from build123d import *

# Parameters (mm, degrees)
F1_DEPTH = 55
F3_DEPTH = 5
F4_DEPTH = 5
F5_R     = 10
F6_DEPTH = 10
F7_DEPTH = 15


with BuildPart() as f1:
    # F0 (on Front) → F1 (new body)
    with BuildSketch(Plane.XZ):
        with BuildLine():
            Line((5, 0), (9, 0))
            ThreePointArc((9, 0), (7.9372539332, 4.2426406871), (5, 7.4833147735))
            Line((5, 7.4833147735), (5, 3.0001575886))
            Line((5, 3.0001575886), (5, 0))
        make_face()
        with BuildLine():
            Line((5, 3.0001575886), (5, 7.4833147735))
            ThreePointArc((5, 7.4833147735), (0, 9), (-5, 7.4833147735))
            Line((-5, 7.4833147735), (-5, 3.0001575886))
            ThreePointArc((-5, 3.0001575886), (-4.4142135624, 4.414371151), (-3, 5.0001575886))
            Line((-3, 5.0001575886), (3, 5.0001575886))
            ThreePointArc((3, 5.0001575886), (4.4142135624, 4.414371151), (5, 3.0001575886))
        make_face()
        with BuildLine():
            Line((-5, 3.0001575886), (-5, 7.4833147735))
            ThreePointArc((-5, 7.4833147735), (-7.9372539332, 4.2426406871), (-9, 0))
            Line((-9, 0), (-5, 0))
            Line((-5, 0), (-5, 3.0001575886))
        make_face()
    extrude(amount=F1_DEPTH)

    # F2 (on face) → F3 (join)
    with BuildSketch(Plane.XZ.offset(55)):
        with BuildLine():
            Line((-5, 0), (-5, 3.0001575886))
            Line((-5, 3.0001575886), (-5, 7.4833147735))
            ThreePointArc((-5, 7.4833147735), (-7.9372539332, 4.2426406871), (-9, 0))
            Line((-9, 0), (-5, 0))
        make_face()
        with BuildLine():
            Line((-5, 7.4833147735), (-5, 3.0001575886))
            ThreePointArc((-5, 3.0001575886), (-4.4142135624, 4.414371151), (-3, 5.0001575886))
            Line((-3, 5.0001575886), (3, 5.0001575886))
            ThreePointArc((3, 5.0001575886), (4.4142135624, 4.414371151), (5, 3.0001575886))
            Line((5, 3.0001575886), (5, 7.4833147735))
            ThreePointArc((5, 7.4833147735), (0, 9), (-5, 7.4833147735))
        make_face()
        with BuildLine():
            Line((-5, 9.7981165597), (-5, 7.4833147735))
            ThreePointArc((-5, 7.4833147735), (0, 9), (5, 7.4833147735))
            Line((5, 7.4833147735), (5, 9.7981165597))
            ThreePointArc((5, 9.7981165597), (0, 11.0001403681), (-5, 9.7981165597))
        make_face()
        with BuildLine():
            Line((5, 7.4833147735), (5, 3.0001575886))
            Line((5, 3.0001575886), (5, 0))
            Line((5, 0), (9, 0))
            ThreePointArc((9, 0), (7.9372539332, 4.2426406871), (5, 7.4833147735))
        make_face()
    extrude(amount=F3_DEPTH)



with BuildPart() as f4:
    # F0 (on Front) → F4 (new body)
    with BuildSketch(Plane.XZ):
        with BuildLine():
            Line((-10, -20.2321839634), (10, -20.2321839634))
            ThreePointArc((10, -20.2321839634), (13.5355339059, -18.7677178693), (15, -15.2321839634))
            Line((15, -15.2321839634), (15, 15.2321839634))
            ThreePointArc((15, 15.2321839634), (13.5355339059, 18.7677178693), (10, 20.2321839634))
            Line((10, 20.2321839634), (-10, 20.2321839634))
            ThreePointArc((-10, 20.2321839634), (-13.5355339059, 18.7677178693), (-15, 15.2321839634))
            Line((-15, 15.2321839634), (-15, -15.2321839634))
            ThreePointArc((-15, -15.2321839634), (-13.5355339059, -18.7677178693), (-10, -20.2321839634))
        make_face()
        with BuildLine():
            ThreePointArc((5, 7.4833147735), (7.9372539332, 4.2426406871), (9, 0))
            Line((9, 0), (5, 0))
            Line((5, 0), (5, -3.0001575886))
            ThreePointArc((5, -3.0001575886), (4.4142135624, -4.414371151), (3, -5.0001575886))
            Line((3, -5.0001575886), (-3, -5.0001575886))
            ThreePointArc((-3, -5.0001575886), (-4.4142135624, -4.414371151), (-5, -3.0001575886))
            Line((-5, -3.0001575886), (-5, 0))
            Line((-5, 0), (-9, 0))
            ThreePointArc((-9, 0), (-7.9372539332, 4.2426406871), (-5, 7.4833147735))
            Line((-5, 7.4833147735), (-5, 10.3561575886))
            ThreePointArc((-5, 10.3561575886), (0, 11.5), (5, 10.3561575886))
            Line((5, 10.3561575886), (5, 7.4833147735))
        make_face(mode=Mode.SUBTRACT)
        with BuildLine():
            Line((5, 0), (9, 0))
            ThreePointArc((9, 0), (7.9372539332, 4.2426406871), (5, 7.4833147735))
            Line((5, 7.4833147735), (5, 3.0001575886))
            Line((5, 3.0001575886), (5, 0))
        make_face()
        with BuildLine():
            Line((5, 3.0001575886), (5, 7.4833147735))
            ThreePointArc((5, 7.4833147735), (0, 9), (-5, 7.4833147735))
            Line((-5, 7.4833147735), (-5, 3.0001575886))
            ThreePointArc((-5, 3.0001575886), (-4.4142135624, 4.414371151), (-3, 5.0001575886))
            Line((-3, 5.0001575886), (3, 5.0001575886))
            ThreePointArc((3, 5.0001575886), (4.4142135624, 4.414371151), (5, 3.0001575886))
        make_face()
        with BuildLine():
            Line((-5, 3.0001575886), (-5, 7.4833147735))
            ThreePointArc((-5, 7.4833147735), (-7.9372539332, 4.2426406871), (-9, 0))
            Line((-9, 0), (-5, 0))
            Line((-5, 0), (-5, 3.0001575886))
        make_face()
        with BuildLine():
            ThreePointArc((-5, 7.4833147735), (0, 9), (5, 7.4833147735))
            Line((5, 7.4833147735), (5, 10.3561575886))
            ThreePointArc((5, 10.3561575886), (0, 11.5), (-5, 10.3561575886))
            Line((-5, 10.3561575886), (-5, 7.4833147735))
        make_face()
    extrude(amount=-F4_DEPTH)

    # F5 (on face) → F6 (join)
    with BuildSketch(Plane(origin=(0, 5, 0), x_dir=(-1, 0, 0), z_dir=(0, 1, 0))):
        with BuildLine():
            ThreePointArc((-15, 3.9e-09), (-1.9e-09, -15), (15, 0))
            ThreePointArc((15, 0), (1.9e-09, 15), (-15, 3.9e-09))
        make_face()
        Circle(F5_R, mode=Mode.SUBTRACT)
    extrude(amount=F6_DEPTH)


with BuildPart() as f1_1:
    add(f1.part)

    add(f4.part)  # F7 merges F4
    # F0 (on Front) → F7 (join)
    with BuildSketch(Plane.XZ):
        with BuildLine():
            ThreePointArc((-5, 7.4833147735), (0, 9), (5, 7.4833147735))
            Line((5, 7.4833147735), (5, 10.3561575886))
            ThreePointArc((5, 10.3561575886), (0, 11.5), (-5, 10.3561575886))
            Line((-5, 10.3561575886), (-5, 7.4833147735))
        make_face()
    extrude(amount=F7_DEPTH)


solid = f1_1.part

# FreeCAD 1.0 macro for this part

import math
import FreeCAD as App
import Part
import Sketcher
Q = App.Units.Quantity

doc = App.newDocument("Part")
body = doc.addObject("PartDesign::Body", "Body")

sketch1 = doc.addObject("Sketcher::SketchObject", "Sketch")
body.addObject(sketch1)
sketch1.AttachmentSupport = (doc.XZ_Plane, [""])
sketch1.MapMode = "FlatFace"
sketch1.addGeometry(Part.LineSegment(App.Vector(5, 3.000158, 0), App.Vector(5, 0, 0)), False)
sketch1.addGeometry(Part.LineSegment(App.Vector(5, 0, 0), App.Vector(9, 0, 0)), False)
sketch1.addGeometry(Part.ArcOfCircle(Part.Circle(App.Vector(0, 0, 0), App.Vector(0, 0, 1), 9), math.radians(0), math.radians(56.251011)), False)
sketch1.addGeometry(Part.ArcOfCircle(Part.Circle(App.Vector(0, 0, 0), App.Vector(0, 0, 1), 9), math.radians(56.251011), math.radians(123.748989)), False)
sketch1.addGeometry(Part.ArcOfCircle(Part.Circle(App.Vector(0, 0, 0), App.Vector(0, 0, 1), 9), math.radians(123.748989), math.radians(180)), False)
sketch1.addGeometry(Part.LineSegment(App.Vector(-9, 0, 0), App.Vector(-5, 0, 0)), False)
sketch1.addGeometry(Part.LineSegment(App.Vector(-5, 0, 0), App.Vector(-5, 3.000158, 0)), False)
sketch1.addGeometry(Part.ArcOfCircle(Part.Circle(App.Vector(-3, 3.000158, 0), App.Vector(0, 0, 1), 2), math.radians(90), math.radians(180)), False)
sketch1.addGeometry(Part.LineSegment(App.Vector(-3, 5.000158, 0), App.Vector(3, 5.000158, 0)), False)
sketch1.addGeometry(Part.ArcOfCircle(Part.Circle(App.Vector(3, 3.000158, 0), App.Vector(0, 0, 1), 2), math.radians(0), math.radians(90)), False)
sketch1.addConstraint(Sketcher.Constraint("Coincident", 0, 2, 1, 1))
sketch1.addConstraint(Sketcher.Constraint("Coincident", 1, 2, 2, 1))
sketch1.addConstraint(Sketcher.Constraint("Tangent", 2, 2, 3, 1))
sketch1.addConstraint(Sketcher.Constraint("Tangent", 3, 2, 4, 1))
sketch1.addConstraint(Sketcher.Constraint("Coincident", 4, 2, 5, 1))
sketch1.addConstraint(Sketcher.Constraint("Coincident", 5, 2, 6, 1))
sketch1.addConstraint(Sketcher.Constraint("Tangent", 6, 2, 7, 2))
sketch1.addConstraint(Sketcher.Constraint("Tangent", 7, 1, 8, 1))
sketch1.addConstraint(Sketcher.Constraint("Tangent", 8, 2, 9, 2))
sketch1.addConstraint(Sketcher.Constraint("Tangent", 9, 1, 0, 1))
sketch1.addConstraint(Sketcher.Constraint("Vertical", 0))
sketch1.addConstraint(Sketcher.Constraint("Horizontal", 1))
sketch1.addConstraint(Sketcher.Constraint("Horizontal", 5))
sketch1.addConstraint(Sketcher.Constraint("Vertical", 6))
sketch1.addConstraint(Sketcher.Constraint("Horizontal", 8))
sketch1.addConstraint(Sketcher.Constraint("Coincident", 2, 3, -1, 1))
sketch1.addConstraint(Sketcher.Constraint("Coincident", 4, 3, -1, 1))
sketch1.addConstraint(Sketcher.Constraint("Equal", 7, 9))
sketch1.addConstraint(Sketcher.Constraint("Symmetric", 0, 2, 5, 2, -1, 1))
sketch1.addConstraint(Sketcher.Constraint("PointOnObject", 0, 2, -1))
sketch1.addConstraint(Sketcher.Constraint("Horizontal", 2, 2, 3, 2))
sketch1.addConstraint(Sketcher.Constraint("Vertical", 0, 2, 2, 2))
sketch1.addConstraint(Sketcher.Constraint("Radius", 2, Q("9 mm")))
sketch1.addConstraint(Sketcher.Constraint("Radius", 7, Q("2 mm")))
sketch1.addConstraint(Sketcher.Constraint("DistanceX", 1, 1, 1, 2, Q("4 mm")))
sketch1.addConstraint(Sketcher.Constraint("DistanceY", 0, 2, 0, 1, Q("3.000158 mm")))
pad1 = doc.addObject("PartDesign::Pad", "Pad")
body.addObject(pad1)
pad1.Profile = sketch1
pad1.Length = 55

sketch2 = doc.addObject("Sketcher::SketchObject", "Sketch001")
body.addObject(sketch2)
sketch2.AttachmentSupport = (doc.XZ_Plane, [""])
sketch2.MapMode = "FlatFace"
sketch2.AttachmentOffset = App.Placement(App.Vector(0, 0, 55), App.Rotation())
sketch2.addGeometry(Part.LineSegment(App.Vector(-5, 0, 0), App.Vector(-5, 3.000158, 0)), False)
sketch2.addGeometry(Part.ArcOfCircle(Part.Circle(App.Vector(-3, 3.000158, 0), App.Vector(0, 0, 1), 2), math.radians(90), math.radians(180)), False)
sketch2.addGeometry(Part.LineSegment(App.Vector(-3, 5.000158, 0), App.Vector(3, 5.000158, 0)), False)
sketch2.addGeometry(Part.ArcOfCircle(Part.Circle(App.Vector(3, 3.000158, 0), App.Vector(0, 0, 1), 2), math.radians(0), math.radians(90)), False)
sketch2.addGeometry(Part.LineSegment(App.Vector(5, 3.000158, 0), App.Vector(5, 0, 0)), False)
sketch2.addGeometry(Part.LineSegment(App.Vector(5, 0, 0), App.Vector(9, 0, 0)), False)
sketch2.addGeometry(Part.ArcOfCircle(Part.Circle(App.Vector(0, 0, 0), App.Vector(0, 0, 1), 9), math.radians(0), math.radians(56.251011)), False)
sketch2.addGeometry(Part.LineSegment(App.Vector(5, 7.483315, 0), App.Vector(5, 9.798117, 0)), False)
sketch2.addGeometry(Part.ArcOfCircle(Part.Circle(App.Vector(0, 0, 0), App.Vector(0, 0, 1), 11.00014), math.radians(62.964681), math.radians(117.035319)), False)
sketch2.addGeometry(Part.LineSegment(App.Vector(-5, 9.798117, 0), App.Vector(-5, 7.483315, 0)), False)
sketch2.addGeometry(Part.ArcOfCircle(Part.Circle(App.Vector(0, 0, 0), App.Vector(0, 0, 1), 9), math.radians(123.748989), math.radians(180)), False)
sketch2.addGeometry(Part.LineSegment(App.Vector(-9, 0, 0), App.Vector(-5, 0, 0)), False)
sketch2.addConstraint(Sketcher.Constraint("Tangent", 0, 2, 1, 2))
sketch2.addConstraint(Sketcher.Constraint("Tangent", 1, 1, 2, 1))
sketch2.addConstraint(Sketcher.Constraint("Tangent", 2, 2, 3, 2))
sketch2.addConstraint(Sketcher.Constraint("Tangent", 3, 1, 4, 1))
sketch2.addConstraint(Sketcher.Constraint("Coincident", 4, 2, 5, 1))
sketch2.addConstraint(Sketcher.Constraint("Coincident", 5, 2, 6, 1))
sketch2.addConstraint(Sketcher.Constraint("Coincident", 6, 2, 7, 1))
sketch2.addConstraint(Sketcher.Constraint("Coincident", 7, 2, 8, 1))
sketch2.addConstraint(Sketcher.Constraint("Coincident", 8, 2, 9, 1))
sketch2.addConstraint(Sketcher.Constraint("Coincident", 9, 2, 10, 1))
sketch2.addConstraint(Sketcher.Constraint("Coincident", 10, 2, 11, 1))
sketch2.addConstraint(Sketcher.Constraint("Coincident", 11, 2, 0, 1))
sketch2.addConstraint(Sketcher.Constraint("Vertical", 0))
sketch2.addConstraint(Sketcher.Constraint("Horizontal", 2))
sketch2.addConstraint(Sketcher.Constraint("Vertical", 4))
sketch2.addConstraint(Sketcher.Constraint("Horizontal", 5))
sketch2.addConstraint(Sketcher.Constraint("Vertical", 7))
sketch2.addConstraint(Sketcher.Constraint("Vertical", 9))
sketch2.addConstraint(Sketcher.Constraint("Horizontal", 11))
sketch2.addConstraint(Sketcher.Constraint("Coincident", 6, 3, -1, 1))
sketch2.addConstraint(Sketcher.Constraint("Coincident", 8, 3, -1, 1))
sketch2.addConstraint(Sketcher.Constraint("Coincident", 10, 3, -1, 1))
sketch2.addConstraint(Sketcher.Constraint("Equal", 1, 3))
sketch2.addConstraint(Sketcher.Constraint("Equal", 6, 10))
sketch2.addConstraint(Sketcher.Constraint("Symmetric", 4, 2, 11, 2, -1, 1))
sketch2.addConstraint(Sketcher.Constraint("PointOnObject", 4, 2, -1))
sketch2.addConstraint(Sketcher.Constraint("Horizontal", 7, 2, 8, 2))
sketch2.addConstraint(Sketcher.Constraint("Vertical", 4, 2, 6, 2))
sketch2.addConstraint(Sketcher.Constraint("Radius", 1, Q("2 mm")))
sketch2.addConstraint(Sketcher.Constraint("Radius", 6, Q("9 mm")))
sketch2.addConstraint(Sketcher.Constraint("DistanceX", 2, 1, 2, 2, Q("6 mm")))
sketch2.addConstraint(Sketcher.Constraint("Radius", 8, Q("11.00014 mm")))
sketch2.addConstraint(Sketcher.Constraint("DistanceY", 0, 1, 0, 2, Q("3.000158 mm")))
pad2 = doc.addObject("PartDesign::Pad", "Pad001")
body.addObject(pad2)
pad2.Profile = sketch2
pad2.Length = 5
body2 = doc.addObject("PartDesign::Body", "Body001")

sketch3 = doc.addObject("Sketcher::SketchObject", "Sketch002")
body2.addObject(sketch3)
sketch3.AttachmentSupport = (doc.getObject("XZ_Plane001"), [""])
sketch3.MapMode = "FlatFace"
sketch3.addGeometry(Part.LineSegment(App.Vector(-10, -20.232184, 0), App.Vector(10, -20.232184, 0)), False)
sketch3.addGeometry(Part.ArcOfCircle(Part.Circle(App.Vector(10, -15.232184, 0), App.Vector(0, 0, 1), 5), math.radians(-90), math.radians(0)), False)
sketch3.addGeometry(Part.LineSegment(App.Vector(15, -15.232184, 0), App.Vector(15, 15.232184, 0)), False)
sketch3.addGeometry(Part.ArcOfCircle(Part.Circle(App.Vector(10, 15.232184, 0), App.Vector(0, 0, 1), 5), math.radians(0), math.radians(90)), False)
sketch3.addGeometry(Part.LineSegment(App.Vector(10, 20.232184, 0), App.Vector(-10, 20.232184, 0)), False)
sketch3.addGeometry(Part.ArcOfCircle(Part.Circle(App.Vector(-10, 15.232184, 0), App.Vector(0, 0, 1), 5), math.radians(90), math.radians(180)), False)
sketch3.addGeometry(Part.LineSegment(App.Vector(-15, 15.232184, 0), App.Vector(-15, -15.232184, 0)), False)
sketch3.addGeometry(Part.ArcOfCircle(Part.Circle(App.Vector(-10, -15.232184, 0), App.Vector(0, 0, 1), 5), math.radians(180), math.radians(270)), False)
sketch3.addGeometry(Part.LineSegment(App.Vector(-5, -3.000158, 0), App.Vector(-5, 3.000158, 0)), False)
sketch3.addGeometry(Part.ArcOfCircle(Part.Circle(App.Vector(-3, 3.000158, 0), App.Vector(0, 0, 1), 2), math.radians(90), math.radians(180)), False)
sketch3.addGeometry(Part.LineSegment(App.Vector(-3, 5.000158, 0), App.Vector(3, 5.000158, 0)), False)
sketch3.addGeometry(Part.ArcOfCircle(Part.Circle(App.Vector(3, 3.000158, 0), App.Vector(0, 0, 1), 2), math.radians(0), math.radians(90)), False)
sketch3.addGeometry(Part.LineSegment(App.Vector(5, 3.000158, 0), App.Vector(5, -3.000158, 0)), False)
sketch3.addGeometry(Part.ArcOfCircle(Part.Circle(App.Vector(3, -3.000158, 0), App.Vector(0, 0, 1), 2), math.radians(-90), math.radians(0)), False)
sketch3.addGeometry(Part.LineSegment(App.Vector(3, -5.000158, 0), App.Vector(-3, -5.000158, 0)), False)
sketch3.addGeometry(Part.ArcOfCircle(Part.Circle(App.Vector(-3, -3.000158, 0), App.Vector(0, 0, 1), 2), math.radians(180), math.radians(270)), False)
sketch3.addConstraint(Sketcher.Constraint("Tangent", 0, 2, 1, 1))
sketch3.addConstraint(Sketcher.Constraint("Tangent", 1, 2, 2, 1))
sketch3.addConstraint(Sketcher.Constraint("Tangent", 2, 2, 3, 1))
sketch3.addConstraint(Sketcher.Constraint("Tangent", 3, 2, 4, 1))
sketch3.addConstraint(Sketcher.Constraint("Tangent", 4, 2, 5, 1))
sketch3.addConstraint(Sketcher.Constraint("Tangent", 5, 2, 6, 1))
sketch3.addConstraint(Sketcher.Constraint("Tangent", 6, 2, 7, 1))
sketch3.addConstraint(Sketcher.Constraint("Tangent", 7, 2, 0, 1))
sketch3.addConstraint(Sketcher.Constraint("Tangent", 8, 2, 9, 2))
sketch3.addConstraint(Sketcher.Constraint("Tangent", 9, 1, 10, 1))
sketch3.addConstraint(Sketcher.Constraint("Tangent", 10, 2, 11, 2))
sketch3.addConstraint(Sketcher.Constraint("Tangent", 11, 1, 12, 1))
sketch3.addConstraint(Sketcher.Constraint("Tangent", 12, 2, 13, 2))
sketch3.addConstraint(Sketcher.Constraint("Tangent", 13, 1, 14, 1))
sketch3.addConstraint(Sketcher.Constraint("Tangent", 14, 2, 15, 2))
sketch3.addConstraint(Sketcher.Constraint("Tangent", 15, 1, 8, 1))
sketch3.addConstraint(Sketcher.Constraint("Horizontal", 0))
sketch3.addConstraint(Sketcher.Constraint("Vertical", 2))
sketch3.addConstraint(Sketcher.Constraint("Horizontal", 4))
sketch3.addConstraint(Sketcher.Constraint("Vertical", 6))
sketch3.addConstraint(Sketcher.Constraint("Vertical", 8))
sketch3.addConstraint(Sketcher.Constraint("Horizontal", 10))
sketch3.addConstraint(Sketcher.Constraint("Vertical", 12))
sketch3.addConstraint(Sketcher.Constraint("Horizontal", 14))
sketch3.addConstraint(Sketcher.Constraint("Equal", 1, 3))
sketch3.addConstraint(Sketcher.Constraint("Equal", 3, 5))
sketch3.addConstraint(Sketcher.Constraint("Equal", 5, 7))
sketch3.addConstraint(Sketcher.Constraint("Equal", 9, 11))
sketch3.addConstraint(Sketcher.Constraint("Equal", 11, 13))
sketch3.addConstraint(Sketcher.Constraint("Equal", 13, 15))
sketch3.addConstraint(Sketcher.Constraint("Symmetric", 1, 3, 5, 3, -1, 1))
sketch3.addConstraint(Sketcher.Constraint("Symmetric", 9, 3, 13, 3, -1, 1))
sketch3.addConstraint(Sketcher.Constraint("Radius", 1, Q("5 mm")))
sketch3.addConstraint(Sketcher.Constraint("Radius", 9, Q("2 mm")))
sketch3.addConstraint(Sketcher.Constraint("DistanceX", 0, 1, 0, 2, Q("20 mm")))
sketch3.addConstraint(Sketcher.Constraint("DistanceX", 10, 1, 10, 2, Q("6 mm")))
sketch3.addConstraint(Sketcher.Constraint("DistanceY", 2, 1, 2, 2, Q("30.464368 mm")))
sketch3.addConstraint(Sketcher.Constraint("DistanceY", 8, 1, 8, 2, Q("6.000315 mm")))
pad3 = doc.addObject("PartDesign::Pad", "Pad002")
body2.addObject(pad3)
pad3.Profile = sketch3
pad3.Length = 5
pad3.Reversed = True

sketch4 = doc.addObject("Sketcher::SketchObject", "Sketch003")
body2.addObject(sketch4)
sketch4.AttachmentSupport = (doc.getObject("XZ_Plane001"), [""])
sketch4.MapMode = "FlatFace"
sketch4.AttachmentOffset = App.Placement(App.Vector(0, 0, -5), App.Rotation())
sketch4.addGeometry(Part.Circle(App.Vector(0, 0, 0), App.Vector(0, 0, 1), 15), False)
sketch4.addGeometry(Part.Circle(App.Vector(0, 0, 0), App.Vector(0, 0, 1), 10), False)
sketch4.addConstraint(Sketcher.Constraint("Coincident", 0, 3, -1, 1))
sketch4.addConstraint(Sketcher.Constraint("Coincident", 1, 3, -1, 1))
sketch4.addConstraint(Sketcher.Constraint("Diameter", 0, Q("30 mm")))
sketch4.addConstraint(Sketcher.Constraint("Diameter", 1, Q("20 mm")))
pad4 = doc.addObject("PartDesign::Pad", "Pad003")
body2.addObject(pad4)
pad4.Profile = sketch4
pad4.Length = 10
pad4.Reversed = True
doc.recompute()

boolean = doc.addObject("PartDesign::Boolean", "Boolean")
body.addObject(boolean)
boolean.Type = "Fuse"
boolean.addObjects([body2])

sketch5 = doc.addObject("Sketcher::SketchObject", "Sketch004")
body.addObject(sketch5)
sketch5.AttachmentSupport = (doc.XZ_Plane, [""])
sketch5.MapMode = "FlatFace"
sketch5.addGeometry(Part.ArcOfCircle(Part.Circle(App.Vector(0, 0, 0), App.Vector(0, 0, 1), 9), math.radians(56.251011), math.radians(123.748989)), False)
sketch5.addGeometry(Part.LineSegment(App.Vector(5, 7.483315, 0), App.Vector(5, 10.356158, 0)), False)
sketch5.addGeometry(Part.ArcOfCircle(Part.Circle(App.Vector(0, 0, 0), App.Vector(0, 0, 1), 11.5), math.radians(64.228538), math.radians(115.771462)), False)
sketch5.addGeometry(Part.LineSegment(App.Vector(-5, 10.356158, 0), App.Vector(-5, 7.483315, 0)), False)
sketch5.addConstraint(Sketcher.Constraint("Coincident", 0, 1, 1, 1))
sketch5.addConstraint(Sketcher.Constraint("Coincident", 1, 2, 2, 1))
sketch5.addConstraint(Sketcher.Constraint("Coincident", 2, 2, 3, 1))
sketch5.addConstraint(Sketcher.Constraint("Coincident", 3, 2, 0, 2))
sketch5.addConstraint(Sketcher.Constraint("Vertical", 1))
sketch5.addConstraint(Sketcher.Constraint("Vertical", 3))
sketch5.addConstraint(Sketcher.Constraint("Coincident", 0, 3, -1, 1))
sketch5.addConstraint(Sketcher.Constraint("Coincident", 2, 3, -1, 1))
sketch5.addConstraint(Sketcher.Constraint("Horizontal", 1, 2, 2, 2))
sketch5.addConstraint(Sketcher.Constraint("Radius", 0, Q("9 mm")))
sketch5.addConstraint(Sketcher.Constraint("Radius", 2, Q("11.5 mm")))
sketch5.addConstraint(Sketcher.Constraint("DistanceX", -1, 1, 0, 1, Q("5 mm")))
pad5 = doc.addObject("PartDesign::Pad", "Pad004")
body.addObject(pad5)
pad5.Profile = sketch5
pad5.Length = 15

doc.recompute()
